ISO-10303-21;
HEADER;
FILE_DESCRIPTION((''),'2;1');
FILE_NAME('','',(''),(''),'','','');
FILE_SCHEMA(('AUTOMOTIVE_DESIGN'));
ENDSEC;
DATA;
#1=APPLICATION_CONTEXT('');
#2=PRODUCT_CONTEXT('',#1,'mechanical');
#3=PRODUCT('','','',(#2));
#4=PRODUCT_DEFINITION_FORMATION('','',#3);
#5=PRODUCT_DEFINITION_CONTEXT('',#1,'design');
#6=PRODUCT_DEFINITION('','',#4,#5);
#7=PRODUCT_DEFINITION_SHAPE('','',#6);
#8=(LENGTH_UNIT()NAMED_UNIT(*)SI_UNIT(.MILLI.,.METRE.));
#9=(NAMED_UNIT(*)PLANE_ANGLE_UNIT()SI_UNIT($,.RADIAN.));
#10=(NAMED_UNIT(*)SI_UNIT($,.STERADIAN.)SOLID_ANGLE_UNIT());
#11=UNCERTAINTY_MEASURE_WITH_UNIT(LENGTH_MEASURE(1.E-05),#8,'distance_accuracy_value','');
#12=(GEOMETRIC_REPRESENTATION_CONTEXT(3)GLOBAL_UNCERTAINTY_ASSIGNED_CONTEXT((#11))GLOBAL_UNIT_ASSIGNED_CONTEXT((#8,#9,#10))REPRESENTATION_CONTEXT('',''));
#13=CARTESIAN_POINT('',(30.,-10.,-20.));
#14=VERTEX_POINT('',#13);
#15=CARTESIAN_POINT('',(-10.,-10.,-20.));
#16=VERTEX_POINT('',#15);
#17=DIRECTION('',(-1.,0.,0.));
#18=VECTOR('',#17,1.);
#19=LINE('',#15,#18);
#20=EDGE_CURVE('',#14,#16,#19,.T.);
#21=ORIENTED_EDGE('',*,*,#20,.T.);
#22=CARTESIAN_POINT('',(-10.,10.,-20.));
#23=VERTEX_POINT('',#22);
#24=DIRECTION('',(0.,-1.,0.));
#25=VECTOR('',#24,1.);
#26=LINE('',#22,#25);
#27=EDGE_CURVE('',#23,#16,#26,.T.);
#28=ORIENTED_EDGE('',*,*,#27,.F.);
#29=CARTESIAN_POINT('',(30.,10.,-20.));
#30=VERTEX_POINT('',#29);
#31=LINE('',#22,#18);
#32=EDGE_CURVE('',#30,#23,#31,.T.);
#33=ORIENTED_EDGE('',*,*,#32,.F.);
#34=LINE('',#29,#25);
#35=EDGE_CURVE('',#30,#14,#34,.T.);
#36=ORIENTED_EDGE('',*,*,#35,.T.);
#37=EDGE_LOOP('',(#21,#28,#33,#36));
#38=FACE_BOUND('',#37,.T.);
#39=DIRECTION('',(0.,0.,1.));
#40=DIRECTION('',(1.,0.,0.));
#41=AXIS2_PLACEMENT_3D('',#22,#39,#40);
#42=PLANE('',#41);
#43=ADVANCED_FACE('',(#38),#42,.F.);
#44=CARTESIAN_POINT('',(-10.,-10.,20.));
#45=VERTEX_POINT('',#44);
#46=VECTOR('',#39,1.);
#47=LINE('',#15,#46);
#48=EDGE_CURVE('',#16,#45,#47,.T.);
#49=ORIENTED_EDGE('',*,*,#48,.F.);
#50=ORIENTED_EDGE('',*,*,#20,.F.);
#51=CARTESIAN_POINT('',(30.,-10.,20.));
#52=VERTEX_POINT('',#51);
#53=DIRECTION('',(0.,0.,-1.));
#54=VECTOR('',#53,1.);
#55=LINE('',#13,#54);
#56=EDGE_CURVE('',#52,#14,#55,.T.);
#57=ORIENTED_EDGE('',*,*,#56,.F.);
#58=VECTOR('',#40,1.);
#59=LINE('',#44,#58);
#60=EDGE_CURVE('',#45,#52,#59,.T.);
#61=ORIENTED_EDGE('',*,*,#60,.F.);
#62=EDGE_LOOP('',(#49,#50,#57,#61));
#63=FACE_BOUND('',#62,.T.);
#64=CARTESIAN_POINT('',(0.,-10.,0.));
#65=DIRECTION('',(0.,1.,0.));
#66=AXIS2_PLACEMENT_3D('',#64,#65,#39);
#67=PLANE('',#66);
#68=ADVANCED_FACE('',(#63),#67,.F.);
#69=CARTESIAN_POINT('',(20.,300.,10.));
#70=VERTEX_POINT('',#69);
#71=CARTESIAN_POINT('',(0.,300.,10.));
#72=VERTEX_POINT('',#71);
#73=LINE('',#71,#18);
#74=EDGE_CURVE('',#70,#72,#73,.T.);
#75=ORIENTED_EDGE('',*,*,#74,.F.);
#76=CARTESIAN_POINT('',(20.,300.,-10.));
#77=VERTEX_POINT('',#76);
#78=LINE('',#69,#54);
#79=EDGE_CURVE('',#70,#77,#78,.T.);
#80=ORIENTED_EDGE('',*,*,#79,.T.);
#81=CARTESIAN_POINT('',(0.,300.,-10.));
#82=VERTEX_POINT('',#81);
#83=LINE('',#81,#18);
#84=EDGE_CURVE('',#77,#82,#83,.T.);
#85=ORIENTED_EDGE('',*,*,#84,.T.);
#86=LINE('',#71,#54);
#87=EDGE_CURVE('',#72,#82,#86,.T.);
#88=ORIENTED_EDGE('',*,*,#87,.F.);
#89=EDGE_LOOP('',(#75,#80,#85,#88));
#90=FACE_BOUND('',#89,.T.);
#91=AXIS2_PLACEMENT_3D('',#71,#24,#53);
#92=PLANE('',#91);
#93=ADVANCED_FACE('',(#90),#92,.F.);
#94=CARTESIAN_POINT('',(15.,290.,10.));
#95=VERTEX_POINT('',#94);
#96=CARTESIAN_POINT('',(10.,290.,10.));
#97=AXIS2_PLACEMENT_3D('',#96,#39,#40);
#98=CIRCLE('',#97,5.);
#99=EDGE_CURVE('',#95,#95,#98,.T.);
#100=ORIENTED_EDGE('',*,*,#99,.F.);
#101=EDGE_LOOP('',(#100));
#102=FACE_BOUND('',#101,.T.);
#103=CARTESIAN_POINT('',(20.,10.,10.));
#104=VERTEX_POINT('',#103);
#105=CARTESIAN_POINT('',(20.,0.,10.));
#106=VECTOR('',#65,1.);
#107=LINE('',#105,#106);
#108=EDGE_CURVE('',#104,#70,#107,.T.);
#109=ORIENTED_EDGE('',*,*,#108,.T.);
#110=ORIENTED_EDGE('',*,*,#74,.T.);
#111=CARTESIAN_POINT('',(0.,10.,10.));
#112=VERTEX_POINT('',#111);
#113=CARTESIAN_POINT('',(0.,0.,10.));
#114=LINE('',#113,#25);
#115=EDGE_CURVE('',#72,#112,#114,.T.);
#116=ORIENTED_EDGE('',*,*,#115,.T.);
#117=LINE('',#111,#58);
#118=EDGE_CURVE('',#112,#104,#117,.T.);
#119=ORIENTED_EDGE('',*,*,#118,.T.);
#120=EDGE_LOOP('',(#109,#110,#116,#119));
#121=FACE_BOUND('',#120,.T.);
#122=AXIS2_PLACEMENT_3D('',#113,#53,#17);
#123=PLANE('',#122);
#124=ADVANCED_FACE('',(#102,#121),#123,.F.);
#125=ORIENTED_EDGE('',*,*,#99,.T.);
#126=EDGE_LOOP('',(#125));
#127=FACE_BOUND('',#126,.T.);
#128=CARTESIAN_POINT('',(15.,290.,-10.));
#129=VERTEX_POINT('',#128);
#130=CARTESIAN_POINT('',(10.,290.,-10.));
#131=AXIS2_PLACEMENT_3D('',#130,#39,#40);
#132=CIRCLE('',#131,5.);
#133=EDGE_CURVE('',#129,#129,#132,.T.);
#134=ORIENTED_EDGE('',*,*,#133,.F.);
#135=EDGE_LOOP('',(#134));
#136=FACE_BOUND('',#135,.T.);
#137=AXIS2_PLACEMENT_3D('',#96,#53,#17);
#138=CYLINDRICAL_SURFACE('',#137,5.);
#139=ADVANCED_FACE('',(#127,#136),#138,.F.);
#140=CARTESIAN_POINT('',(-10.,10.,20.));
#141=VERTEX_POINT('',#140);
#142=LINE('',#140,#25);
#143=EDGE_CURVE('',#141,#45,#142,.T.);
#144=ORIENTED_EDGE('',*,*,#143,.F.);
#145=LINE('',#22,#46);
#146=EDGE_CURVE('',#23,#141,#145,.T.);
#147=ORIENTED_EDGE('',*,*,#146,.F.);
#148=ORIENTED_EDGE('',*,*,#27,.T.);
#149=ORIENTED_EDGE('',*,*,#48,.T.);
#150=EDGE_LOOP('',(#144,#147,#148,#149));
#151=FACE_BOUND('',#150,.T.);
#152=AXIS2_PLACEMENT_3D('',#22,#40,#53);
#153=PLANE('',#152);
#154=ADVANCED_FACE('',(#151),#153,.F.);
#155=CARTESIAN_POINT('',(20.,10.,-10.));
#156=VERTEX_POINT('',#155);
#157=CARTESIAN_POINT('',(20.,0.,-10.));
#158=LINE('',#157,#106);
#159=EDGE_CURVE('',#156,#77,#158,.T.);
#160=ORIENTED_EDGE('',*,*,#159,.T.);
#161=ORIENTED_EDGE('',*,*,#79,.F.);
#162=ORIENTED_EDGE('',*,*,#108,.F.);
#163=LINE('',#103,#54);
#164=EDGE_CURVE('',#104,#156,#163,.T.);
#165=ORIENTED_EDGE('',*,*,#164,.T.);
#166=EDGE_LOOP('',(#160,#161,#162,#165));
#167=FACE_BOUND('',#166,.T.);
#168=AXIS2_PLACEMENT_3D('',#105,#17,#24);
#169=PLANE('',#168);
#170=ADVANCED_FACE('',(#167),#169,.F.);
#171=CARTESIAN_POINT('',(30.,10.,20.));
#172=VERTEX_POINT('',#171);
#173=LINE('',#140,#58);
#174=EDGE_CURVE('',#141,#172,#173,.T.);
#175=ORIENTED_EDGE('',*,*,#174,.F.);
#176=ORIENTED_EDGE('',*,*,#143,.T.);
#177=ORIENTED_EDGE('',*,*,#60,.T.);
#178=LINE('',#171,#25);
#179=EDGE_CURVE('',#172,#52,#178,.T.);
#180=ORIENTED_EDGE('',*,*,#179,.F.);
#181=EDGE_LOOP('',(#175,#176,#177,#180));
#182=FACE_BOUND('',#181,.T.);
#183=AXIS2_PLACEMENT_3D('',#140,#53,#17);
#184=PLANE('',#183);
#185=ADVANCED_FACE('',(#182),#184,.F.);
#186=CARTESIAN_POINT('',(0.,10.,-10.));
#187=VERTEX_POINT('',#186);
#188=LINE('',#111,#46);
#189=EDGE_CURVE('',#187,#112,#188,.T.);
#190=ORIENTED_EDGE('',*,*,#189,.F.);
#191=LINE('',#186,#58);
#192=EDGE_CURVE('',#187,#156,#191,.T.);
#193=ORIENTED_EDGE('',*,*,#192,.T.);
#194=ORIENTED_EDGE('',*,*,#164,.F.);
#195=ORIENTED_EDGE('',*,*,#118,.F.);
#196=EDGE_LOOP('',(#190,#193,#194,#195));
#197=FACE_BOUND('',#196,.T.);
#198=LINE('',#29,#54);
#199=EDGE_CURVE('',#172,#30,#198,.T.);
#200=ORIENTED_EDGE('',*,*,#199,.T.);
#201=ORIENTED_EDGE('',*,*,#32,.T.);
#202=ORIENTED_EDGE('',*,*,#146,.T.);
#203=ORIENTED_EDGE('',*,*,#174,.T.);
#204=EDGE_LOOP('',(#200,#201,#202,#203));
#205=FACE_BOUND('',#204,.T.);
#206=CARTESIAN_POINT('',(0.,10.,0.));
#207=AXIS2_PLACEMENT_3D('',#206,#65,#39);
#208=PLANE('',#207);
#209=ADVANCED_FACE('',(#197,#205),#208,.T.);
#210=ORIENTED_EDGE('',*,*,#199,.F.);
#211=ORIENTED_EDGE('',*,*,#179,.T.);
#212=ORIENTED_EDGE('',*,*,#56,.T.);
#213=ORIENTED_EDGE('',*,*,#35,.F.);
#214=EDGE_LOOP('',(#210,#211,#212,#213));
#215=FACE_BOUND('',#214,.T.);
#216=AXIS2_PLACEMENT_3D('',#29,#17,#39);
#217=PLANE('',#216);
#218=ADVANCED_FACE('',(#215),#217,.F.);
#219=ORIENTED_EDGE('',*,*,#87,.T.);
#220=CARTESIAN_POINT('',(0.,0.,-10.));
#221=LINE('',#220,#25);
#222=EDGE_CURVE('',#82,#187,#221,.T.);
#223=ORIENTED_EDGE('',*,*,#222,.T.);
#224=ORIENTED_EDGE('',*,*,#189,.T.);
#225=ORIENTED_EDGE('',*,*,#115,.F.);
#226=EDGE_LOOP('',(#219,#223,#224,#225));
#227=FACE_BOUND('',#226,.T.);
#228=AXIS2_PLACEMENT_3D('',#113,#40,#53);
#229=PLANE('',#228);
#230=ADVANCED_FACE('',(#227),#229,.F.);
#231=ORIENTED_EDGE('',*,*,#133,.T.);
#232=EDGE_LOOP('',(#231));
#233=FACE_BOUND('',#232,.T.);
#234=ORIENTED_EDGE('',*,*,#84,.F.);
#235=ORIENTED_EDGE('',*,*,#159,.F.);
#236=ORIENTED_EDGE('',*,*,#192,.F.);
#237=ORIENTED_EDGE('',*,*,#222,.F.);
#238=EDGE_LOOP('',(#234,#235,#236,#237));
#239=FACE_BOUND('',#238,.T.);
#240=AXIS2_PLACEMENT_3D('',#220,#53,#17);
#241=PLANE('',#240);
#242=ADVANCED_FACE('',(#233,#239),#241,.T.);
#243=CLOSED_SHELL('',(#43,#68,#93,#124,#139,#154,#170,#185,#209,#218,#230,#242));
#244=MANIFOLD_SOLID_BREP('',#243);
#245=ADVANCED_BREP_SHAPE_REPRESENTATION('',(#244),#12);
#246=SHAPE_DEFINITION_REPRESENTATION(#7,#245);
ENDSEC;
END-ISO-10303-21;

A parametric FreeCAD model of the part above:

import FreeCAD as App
import Part
import Sketcher

V = App.Vector

doc = App.newDocument("Part")
body = doc.addObject("PartDesign::Body", "Body")

# Sketch on XY plane
sketch1 = body.newObject("Sketcher::SketchObject", "Sketch")
sketch1.AttachmentSupport = (doc.getObject("XY_Plane"), [""])
sketch1.MapMode = "FlatFace"
sketch1.addGeometry([
    Part.LineSegment(V(0, 300, 0), V(0, 0, 0)),  # 0
    Part.LineSegment(V(0, 0, 0), V(20, 0, 0)),  # 1
    Part.LineSegment(V(20, 0, 0), V(20, 300, 0)),  # 2
    Part.LineSegment(V(20, 300, 0), V(0, 300, 0)),  # 3
    Part.Circle(V(10, 290, 0), V(0, 0, 1), 5),  # 4
], False)
sketch1.addConstraint([
    Sketcher.Constraint("Coincident", 0, 2, 1, 1),
    Sketcher.Constraint("Coincident", 1, 2, 2, 1),
    Sketcher.Constraint("Coincident", 2, 2, 3, 1),
    Sketcher.Constraint("Coincident", 3, 2, 0, 1),
    Sketcher.Constraint("Vertical", 0),
    Sketcher.Constraint("Horizontal", 1),
    Sketcher.Constraint("Vertical", 2),
    Sketcher.Constraint("Horizontal", 3),
    Sketcher.Constraint("Coincident", 0, 2, -1, 1),
    Sketcher.Constraint("Diameter", 4, 10.0),
    Sketcher.Constraint("DistanceX", 1, 1, 1, 2, 20.0),
    Sketcher.Constraint("DistanceY", 0, 2, 0, 1, 300.0),
    Sketcher.Constraint("DistanceX", -1, 1, 4, 3, 10.0),
    Sketcher.Constraint("DistanceY", -1, 1, 4, 3, 290.0),
])
pad1 = body.newObject("PartDesign::Pad", "Pad")
pad1.Profile = sketch1
pad1.Length = 20
pad1.Midplane = True

# Sketch on XZ plane
sketch2 = body.newObject("Sketcher::SketchObject", "Sketch001")
sketch2.AttachmentSupport = (doc.getObject("XZ_Plane"), [""])
sketch2.MapMode = "FlatFace"
sketch2.addGeometry([
    Part.LineSegment(V(-10, -20, 0), V(-10, 20, 0)),
    Part.LineSegment(V(-10, 20, 0), V(30, 20, 0)),
    Part.LineSegment(V(30, 20, 0), V(30, -20, 0)),
    Part.LineSegment(V(30, -20, 0), V(-10, -20, 0)),
], False)
sketch2.addConstraint([
    Sketcher.Constraint("Coincident", 0, 2, 1, 1),
    Sketcher.Constraint("Coincident", 1, 2, 2, 1),
    Sketcher.Constraint("Coincident", 2, 2, 3, 1),
    Sketcher.Constraint("Coincident", 3, 2, 0, 1),
    Sketcher.Constraint("Vertical", 0),
    Sketcher.Constraint("Horizontal", 1),
    Sketcher.Constraint("Vertical", 2),
    Sketcher.Constraint("Horizontal", 3),
    Sketcher.Constraint("Equal", 3, 0),
    Sketcher.Constraint("DistanceX", 1, 1, 1, 2, 40.0),
    Sketcher.Constraint("DistanceX", 0, 2, -1, 1, 10.0),
    Sketcher.Constraint("DistanceY", -1, 1, 0, 2, 20.0),
])
pad2 = body.newObject("PartDesign::Pad", "Pad001")
pad2.Profile = sketch2
pad2.Length = 20
pad2.Midplane = True

doc.recompute()
